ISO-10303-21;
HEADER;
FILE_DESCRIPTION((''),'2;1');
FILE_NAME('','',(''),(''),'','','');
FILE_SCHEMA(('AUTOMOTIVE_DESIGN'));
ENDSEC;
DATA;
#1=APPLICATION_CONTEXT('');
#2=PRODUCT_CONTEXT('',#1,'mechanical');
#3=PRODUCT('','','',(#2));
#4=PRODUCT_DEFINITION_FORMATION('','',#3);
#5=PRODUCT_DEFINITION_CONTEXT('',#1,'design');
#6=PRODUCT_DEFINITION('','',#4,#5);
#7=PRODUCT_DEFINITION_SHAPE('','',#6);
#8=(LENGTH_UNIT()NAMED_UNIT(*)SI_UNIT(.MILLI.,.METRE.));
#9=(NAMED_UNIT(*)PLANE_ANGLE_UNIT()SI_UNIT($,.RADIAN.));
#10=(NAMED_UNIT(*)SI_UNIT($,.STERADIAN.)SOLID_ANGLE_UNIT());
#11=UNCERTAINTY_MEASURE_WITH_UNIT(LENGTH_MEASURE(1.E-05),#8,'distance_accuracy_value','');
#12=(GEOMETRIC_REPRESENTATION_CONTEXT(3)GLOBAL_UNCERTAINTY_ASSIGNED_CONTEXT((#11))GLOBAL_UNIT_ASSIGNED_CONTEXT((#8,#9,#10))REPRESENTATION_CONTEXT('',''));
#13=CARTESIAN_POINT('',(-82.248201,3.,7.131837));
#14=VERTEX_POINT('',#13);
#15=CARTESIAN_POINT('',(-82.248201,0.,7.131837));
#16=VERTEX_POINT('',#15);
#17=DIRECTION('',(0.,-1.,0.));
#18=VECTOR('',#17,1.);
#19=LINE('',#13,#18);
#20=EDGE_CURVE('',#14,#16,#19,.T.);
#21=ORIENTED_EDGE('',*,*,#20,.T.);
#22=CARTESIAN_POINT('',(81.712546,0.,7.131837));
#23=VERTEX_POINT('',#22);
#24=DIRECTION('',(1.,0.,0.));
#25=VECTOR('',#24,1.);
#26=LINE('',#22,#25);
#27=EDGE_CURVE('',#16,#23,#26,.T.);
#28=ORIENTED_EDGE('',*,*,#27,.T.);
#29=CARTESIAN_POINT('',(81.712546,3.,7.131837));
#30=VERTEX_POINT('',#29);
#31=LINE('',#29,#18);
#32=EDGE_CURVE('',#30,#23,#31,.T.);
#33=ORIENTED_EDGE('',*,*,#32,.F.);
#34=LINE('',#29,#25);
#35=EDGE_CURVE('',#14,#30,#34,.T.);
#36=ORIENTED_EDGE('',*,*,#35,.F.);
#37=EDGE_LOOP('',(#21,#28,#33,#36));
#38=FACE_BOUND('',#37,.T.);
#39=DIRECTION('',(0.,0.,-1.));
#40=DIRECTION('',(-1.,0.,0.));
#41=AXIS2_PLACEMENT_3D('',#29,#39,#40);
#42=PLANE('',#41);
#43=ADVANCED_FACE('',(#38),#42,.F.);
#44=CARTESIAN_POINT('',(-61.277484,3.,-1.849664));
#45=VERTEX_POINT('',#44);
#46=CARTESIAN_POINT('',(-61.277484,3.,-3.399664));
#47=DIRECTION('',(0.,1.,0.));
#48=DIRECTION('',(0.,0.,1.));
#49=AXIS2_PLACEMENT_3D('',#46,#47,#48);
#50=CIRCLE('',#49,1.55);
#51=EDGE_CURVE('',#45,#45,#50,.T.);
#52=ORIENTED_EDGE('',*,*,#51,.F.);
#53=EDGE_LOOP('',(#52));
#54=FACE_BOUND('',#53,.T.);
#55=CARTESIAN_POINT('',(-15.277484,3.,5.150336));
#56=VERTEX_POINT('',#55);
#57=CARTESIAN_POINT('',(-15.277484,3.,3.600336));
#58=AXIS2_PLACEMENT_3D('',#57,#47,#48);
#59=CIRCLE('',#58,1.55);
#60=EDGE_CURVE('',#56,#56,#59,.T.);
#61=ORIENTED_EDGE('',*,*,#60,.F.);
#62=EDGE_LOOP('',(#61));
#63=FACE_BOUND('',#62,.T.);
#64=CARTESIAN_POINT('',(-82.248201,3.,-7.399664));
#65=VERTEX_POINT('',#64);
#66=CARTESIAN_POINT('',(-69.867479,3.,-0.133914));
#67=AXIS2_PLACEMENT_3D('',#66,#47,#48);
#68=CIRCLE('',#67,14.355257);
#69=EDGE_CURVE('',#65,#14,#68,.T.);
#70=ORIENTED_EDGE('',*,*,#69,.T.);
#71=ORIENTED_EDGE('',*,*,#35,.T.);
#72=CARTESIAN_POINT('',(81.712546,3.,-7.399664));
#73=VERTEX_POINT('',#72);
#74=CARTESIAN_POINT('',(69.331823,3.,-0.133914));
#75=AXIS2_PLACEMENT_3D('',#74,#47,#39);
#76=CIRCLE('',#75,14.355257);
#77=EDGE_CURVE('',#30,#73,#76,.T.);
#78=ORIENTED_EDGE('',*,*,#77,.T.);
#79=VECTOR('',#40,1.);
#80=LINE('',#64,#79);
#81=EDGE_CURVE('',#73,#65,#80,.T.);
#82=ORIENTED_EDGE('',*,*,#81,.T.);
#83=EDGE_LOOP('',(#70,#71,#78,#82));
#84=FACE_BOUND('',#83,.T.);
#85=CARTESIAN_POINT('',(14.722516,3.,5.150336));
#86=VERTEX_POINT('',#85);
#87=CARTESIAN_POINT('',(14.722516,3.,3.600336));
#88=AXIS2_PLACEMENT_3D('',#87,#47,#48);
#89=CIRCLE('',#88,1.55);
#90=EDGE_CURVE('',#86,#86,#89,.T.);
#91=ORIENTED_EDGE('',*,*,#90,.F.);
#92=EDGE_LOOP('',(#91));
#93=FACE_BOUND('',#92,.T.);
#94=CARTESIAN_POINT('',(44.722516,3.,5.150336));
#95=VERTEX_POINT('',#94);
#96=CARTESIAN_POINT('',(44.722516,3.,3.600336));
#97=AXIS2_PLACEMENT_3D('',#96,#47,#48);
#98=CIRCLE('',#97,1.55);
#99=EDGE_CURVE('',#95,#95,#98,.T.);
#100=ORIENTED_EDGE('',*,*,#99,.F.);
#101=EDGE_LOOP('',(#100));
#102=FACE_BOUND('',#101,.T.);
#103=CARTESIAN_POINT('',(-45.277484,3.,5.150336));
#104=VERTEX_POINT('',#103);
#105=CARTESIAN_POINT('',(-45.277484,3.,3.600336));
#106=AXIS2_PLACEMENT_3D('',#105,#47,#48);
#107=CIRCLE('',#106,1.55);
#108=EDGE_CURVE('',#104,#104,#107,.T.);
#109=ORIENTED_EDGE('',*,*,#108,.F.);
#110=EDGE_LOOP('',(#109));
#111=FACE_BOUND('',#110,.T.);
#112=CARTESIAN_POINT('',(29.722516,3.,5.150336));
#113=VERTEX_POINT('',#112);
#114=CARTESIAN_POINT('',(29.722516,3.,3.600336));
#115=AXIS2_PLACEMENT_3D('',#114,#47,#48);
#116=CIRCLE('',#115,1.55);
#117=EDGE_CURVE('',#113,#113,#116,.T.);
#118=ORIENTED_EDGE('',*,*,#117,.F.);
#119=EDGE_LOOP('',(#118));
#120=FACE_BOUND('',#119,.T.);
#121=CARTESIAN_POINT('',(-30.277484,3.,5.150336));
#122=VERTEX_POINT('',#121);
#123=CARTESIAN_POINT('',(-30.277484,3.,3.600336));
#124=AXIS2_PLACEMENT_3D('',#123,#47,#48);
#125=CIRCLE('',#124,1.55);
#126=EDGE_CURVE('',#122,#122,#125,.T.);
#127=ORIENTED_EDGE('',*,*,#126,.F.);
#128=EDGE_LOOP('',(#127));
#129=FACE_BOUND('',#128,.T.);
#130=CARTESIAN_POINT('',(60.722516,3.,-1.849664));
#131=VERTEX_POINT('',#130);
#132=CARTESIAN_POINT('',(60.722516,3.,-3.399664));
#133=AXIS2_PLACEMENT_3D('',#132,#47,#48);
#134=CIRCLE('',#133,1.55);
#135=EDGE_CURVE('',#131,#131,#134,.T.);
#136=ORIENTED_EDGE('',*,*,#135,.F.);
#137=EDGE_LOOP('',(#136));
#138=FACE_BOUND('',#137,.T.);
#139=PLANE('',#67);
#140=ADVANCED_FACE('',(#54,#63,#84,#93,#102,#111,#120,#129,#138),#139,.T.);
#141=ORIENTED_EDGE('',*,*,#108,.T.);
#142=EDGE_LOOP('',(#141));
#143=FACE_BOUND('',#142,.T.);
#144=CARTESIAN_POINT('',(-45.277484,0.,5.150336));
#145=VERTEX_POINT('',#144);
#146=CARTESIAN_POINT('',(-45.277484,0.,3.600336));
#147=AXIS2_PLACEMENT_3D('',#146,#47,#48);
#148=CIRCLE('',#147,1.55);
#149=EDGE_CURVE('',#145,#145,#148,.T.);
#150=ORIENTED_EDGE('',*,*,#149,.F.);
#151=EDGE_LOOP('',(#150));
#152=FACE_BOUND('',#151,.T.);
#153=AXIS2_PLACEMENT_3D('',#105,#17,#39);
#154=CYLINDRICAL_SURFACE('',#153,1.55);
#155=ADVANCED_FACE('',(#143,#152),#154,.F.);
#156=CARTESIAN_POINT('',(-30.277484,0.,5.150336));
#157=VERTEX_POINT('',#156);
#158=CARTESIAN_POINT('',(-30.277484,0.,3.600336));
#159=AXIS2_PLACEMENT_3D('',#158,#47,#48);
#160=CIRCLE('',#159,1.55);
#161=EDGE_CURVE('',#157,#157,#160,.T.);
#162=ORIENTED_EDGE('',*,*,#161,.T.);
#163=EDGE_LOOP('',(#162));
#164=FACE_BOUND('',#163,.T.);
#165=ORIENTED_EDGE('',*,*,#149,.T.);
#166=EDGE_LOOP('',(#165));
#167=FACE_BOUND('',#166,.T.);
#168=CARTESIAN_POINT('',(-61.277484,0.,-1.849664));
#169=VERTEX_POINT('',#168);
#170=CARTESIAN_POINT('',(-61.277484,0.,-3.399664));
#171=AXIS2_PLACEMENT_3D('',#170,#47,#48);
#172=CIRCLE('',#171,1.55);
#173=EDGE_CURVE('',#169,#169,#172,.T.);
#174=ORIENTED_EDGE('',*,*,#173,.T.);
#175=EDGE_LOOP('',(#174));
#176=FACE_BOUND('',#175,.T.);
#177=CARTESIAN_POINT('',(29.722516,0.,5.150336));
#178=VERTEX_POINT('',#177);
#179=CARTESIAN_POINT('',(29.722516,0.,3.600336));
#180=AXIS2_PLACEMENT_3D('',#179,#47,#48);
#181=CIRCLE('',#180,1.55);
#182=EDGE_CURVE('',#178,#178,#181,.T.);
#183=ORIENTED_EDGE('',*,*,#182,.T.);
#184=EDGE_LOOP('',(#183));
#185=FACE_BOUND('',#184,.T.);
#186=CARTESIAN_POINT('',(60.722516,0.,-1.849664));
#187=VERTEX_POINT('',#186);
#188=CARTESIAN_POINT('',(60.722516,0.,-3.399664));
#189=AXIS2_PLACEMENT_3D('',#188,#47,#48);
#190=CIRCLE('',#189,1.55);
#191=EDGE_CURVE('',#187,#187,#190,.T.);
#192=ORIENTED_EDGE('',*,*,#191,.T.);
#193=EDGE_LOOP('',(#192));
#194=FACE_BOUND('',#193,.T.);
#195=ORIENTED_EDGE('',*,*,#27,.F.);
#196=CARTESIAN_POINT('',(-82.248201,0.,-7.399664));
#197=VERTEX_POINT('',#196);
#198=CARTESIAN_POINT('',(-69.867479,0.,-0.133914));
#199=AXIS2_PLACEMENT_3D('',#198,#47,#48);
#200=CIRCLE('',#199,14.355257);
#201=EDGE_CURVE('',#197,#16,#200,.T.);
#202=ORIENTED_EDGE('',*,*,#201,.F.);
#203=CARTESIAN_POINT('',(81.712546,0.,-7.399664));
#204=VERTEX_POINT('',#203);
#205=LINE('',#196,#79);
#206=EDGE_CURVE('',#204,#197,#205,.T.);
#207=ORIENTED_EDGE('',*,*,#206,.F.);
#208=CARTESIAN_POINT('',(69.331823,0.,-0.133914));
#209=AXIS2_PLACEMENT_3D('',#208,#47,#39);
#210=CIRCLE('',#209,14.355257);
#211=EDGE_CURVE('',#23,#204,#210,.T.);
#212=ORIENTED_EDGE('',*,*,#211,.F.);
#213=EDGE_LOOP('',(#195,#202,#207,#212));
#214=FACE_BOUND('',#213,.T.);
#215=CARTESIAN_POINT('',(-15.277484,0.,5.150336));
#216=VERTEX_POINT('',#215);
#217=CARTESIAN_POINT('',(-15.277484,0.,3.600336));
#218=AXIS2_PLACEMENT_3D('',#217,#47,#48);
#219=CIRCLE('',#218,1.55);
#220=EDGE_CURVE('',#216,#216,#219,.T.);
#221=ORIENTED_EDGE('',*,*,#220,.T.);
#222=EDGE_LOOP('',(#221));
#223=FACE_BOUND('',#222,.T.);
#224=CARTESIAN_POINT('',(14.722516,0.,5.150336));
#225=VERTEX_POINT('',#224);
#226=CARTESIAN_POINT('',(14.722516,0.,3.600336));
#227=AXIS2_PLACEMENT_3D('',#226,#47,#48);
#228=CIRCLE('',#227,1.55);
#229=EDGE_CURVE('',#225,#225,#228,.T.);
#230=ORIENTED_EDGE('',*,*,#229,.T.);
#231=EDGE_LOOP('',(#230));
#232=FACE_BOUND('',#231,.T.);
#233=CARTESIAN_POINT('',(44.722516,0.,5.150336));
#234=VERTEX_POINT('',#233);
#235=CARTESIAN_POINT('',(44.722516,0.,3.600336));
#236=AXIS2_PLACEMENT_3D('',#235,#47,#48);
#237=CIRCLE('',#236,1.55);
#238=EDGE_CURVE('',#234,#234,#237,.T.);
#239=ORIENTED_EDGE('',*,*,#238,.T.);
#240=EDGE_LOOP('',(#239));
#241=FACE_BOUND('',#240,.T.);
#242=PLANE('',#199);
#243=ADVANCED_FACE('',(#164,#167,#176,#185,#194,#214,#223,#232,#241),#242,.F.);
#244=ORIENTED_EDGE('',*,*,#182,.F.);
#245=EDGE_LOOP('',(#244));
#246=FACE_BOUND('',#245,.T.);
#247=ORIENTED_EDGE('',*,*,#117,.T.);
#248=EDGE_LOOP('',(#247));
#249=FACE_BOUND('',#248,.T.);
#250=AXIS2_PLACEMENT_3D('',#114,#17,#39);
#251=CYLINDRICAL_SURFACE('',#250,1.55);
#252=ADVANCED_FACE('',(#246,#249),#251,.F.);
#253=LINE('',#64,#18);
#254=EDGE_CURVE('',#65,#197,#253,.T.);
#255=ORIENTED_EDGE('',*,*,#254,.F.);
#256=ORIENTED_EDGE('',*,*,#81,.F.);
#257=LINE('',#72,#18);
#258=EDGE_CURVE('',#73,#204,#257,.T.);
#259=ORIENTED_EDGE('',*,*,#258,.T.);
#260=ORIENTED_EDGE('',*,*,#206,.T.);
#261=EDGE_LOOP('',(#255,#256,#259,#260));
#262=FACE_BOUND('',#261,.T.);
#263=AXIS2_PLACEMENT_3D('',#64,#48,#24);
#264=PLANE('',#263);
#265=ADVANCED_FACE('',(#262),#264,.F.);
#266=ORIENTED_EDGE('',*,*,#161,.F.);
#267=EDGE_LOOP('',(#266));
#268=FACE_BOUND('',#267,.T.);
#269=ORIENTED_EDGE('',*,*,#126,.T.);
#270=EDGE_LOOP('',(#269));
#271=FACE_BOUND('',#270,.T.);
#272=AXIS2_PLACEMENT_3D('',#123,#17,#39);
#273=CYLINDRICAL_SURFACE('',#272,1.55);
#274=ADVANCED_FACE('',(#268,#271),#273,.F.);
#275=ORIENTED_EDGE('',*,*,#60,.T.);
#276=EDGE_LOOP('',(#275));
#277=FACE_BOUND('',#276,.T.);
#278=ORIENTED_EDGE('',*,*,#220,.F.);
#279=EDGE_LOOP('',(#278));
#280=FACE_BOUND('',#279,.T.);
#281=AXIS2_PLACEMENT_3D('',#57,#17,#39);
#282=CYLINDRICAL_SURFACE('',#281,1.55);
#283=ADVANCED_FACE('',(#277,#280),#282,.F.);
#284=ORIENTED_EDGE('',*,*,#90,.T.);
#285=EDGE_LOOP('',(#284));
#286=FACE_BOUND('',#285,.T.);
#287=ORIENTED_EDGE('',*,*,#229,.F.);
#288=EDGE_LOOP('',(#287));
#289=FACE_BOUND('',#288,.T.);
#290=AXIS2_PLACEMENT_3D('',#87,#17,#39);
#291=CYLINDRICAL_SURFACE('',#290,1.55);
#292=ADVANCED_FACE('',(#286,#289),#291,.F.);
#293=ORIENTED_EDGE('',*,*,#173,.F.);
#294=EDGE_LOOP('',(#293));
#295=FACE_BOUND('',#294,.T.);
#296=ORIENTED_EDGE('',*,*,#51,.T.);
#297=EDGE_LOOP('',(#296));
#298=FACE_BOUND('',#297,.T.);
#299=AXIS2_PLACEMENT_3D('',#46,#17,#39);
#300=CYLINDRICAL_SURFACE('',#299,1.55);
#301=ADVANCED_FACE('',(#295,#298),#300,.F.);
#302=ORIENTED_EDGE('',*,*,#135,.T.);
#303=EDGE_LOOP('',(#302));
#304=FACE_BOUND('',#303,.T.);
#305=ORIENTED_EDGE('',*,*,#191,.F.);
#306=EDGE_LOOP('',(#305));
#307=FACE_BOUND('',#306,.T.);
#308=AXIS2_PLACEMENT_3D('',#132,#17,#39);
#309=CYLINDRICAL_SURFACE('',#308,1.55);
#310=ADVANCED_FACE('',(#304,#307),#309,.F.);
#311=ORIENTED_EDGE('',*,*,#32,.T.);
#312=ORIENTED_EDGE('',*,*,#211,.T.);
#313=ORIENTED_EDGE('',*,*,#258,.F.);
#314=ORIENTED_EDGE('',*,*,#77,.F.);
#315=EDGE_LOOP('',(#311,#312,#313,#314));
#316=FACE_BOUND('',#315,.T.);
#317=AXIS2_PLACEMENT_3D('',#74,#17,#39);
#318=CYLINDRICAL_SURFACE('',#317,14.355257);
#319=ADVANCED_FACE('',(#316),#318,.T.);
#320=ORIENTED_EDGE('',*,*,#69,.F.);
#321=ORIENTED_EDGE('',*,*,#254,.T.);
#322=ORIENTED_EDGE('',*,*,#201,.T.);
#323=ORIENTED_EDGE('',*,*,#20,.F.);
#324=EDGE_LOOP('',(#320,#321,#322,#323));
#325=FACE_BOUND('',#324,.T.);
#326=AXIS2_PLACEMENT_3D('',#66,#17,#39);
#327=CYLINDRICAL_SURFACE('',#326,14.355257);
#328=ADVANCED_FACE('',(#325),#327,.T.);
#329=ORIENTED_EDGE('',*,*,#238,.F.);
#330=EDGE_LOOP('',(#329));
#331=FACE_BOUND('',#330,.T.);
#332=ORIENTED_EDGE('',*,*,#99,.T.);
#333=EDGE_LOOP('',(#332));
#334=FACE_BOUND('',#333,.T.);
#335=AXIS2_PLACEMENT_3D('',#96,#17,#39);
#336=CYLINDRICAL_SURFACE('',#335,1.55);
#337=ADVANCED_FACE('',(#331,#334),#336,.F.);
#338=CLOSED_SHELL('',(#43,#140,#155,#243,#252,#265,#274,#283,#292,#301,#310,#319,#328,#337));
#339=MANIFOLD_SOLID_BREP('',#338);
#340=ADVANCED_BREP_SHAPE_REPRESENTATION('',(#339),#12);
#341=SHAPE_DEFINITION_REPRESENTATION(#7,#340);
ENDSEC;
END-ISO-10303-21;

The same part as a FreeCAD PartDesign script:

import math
import FreeCAD as App
import Part
import Sketcher
from FreeCAD import Vector
Q = App.Units.Quantity

doc = App.newDocument("Part")
body = doc.addObject("PartDesign::Body", "Body")

# Sketch on XZ plane
sketch1 = body.newObject("Sketcher::SketchObject", "Sketch")
sketch1.AttachmentSupport = (doc.getObject("XZ_Plane"), [""])
sketch1.MapMode = "FlatFace"
sketch1.addGeometry([
    Part.LineSegment(Vector(81.712546, -7.399664, 0), Vector(-82.248201, -7.399664, 0)),  # 0
    Part.ArcOfCircle(Part.Circle(Vector(-69.867479, -0.133914, 0), Vector(0, 0, 1), 14.355257), math.radians(149.593033), math.radians(210.406967)),  # 1
    Part.LineSegment(Vector(-82.248201, 7.131837, 0), Vector(81.712546, 7.131837, 0)),  # 2
    Part.ArcOfCircle(Part.Circle(Vector(69.331823, -0.133914, 0), Vector(0, 0, 1), 14.355257), math.radians(-30.406967), math.radians(30.406967)),  # 3
    Part.Circle(Vector(44.722516, 3.600336, 0), Vector(0, 0, 1), 1.55),  # 4
    Part.Circle(Vector(29.722516, 3.600336, 0), Vector(0, 0, 1), 1.55),  # 5
    Part.Circle(Vector(14.722516, 3.600336, 0), Vector(0, 0, 1), 1.55),  # 6
    Part.Circle(Vector(-15.277484, 3.600336, 0), Vector(0, 0, 1), 1.55),  # 7
    Part.Circle(Vector(-30.277484, 3.600336, 0), Vector(0, 0, 1), 1.55),  # 8
    Part.Circle(Vector(-45.277484, 3.600336, 0), Vector(0, 0, 1), 1.55),  # 9
    Part.Circle(Vector(60.722516, -3.399664, 0), Vector(0, 0, 1), 1.55),  # 10
    Part.Circle(Vector(-61.277484, -3.399664, 0), Vector(0, 0, 1), 1.55),  # 11
], False)
sketch1.addConstraint([
    Sketcher.Constraint("Coincident", 0, 2, 1, 2),
    Sketcher.Constraint("Coincident", 1, 1, 2, 1),
    Sketcher.Constraint("Coincident", 2, 2, 3, 2),
    Sketcher.Constraint("Coincident", 3, 1, 0, 1),
    Sketcher.Constraint("Horizontal", 0),
    Sketcher.Constraint("Horizontal", 2),
    Sketcher.Constraint("Equal", 1, 3),
    Sketcher.Constraint("Equal", 4, 5),
    Sketcher.Constraint("Equal", 5, 6),
    Sketcher.Constraint("Equal", 6, 7),
    Sketcher.Constraint("Equal", 7, 8),
    Sketcher.Constraint("Equal", 8, 9),
    Sketcher.Constraint("Equal", 9, 10),
    Sketcher.Constraint("Equal", 10, 11),
    Sketcher.Constraint("Horizontal", 1, 3, 3, 3),
    Sketcher.Constraint("Horizontal", 4, 3, 5, 3),
    Sketcher.Constraint("Horizontal", 5, 3, 6, 3),
    Sketcher.Constraint("Horizontal", 6, 3, 7, 3),
    Sketcher.Constraint("Horizontal", 7, 3, 8, 3),
    Sketcher.Constraint("Horizontal", 8, 3, 9, 3),
    Sketcher.Constraint("Horizontal", 10, 3, 11, 3),
    Sketcher.Constraint("Vertical", 0, 2, 1, 1),
    Sketcher.Constraint("Diameter", 4, Q("3.1 mm")),
    Sketcher.Constraint("DistanceX", 5, 3, 4, 3, Q("15 mm")),
    Sketcher.Constraint("DistanceX", 6, 3, 5, 3, Q("15 mm")),
    Sketcher.Constraint("DistanceX", 7, 3, 6, 3, Q("30 mm")),
    Sketcher.Constraint("DistanceX", 8, 3, 7, 3, Q("15 mm")),
    Sketcher.Constraint("DistanceX", 9, 3, 8, 3, Q("15 mm")),
    Sketcher.Constraint("DistanceX", 4, 3, 10, 3, Q("16 mm")),
    Sketcher.Constraint("DistanceY", 10, 3, 4, 3, Q("7 mm")),
    Sketcher.Constraint("DistanceX", 11, 3, 9, 3, Q("16 mm")),
    Sketcher.Constraint("DistanceY", 0, 2, 11, 3, Q("4 mm")),
    Sketcher.Constraint("Radius", 1, Q("14.355257 mm")),
    Sketcher.Constraint("DistanceX", 0, 2, -1, 1, Q("82.248201 mm")),
    Sketcher.Constraint("DistanceX", 1, 3, 3, 3, Q("139.199302 mm")),
    Sketcher.Constraint("DistanceY", 0, 2, 1, 1, Q("14.531501 mm")),
    Sketcher.Constraint("DistanceX", 10, 3, 2, 2, Q("20.99003 mm")),
    Sketcher.Constraint("DistanceY", 1, 3, -1, 1, Q("0.133914 mm")),
])
pad1 = body.newObject("PartDesign::Pad", "Pad")
pad1.Profile = sketch1
pad1.Length = 3
pad1.Reversed = True

doc.recompute()
